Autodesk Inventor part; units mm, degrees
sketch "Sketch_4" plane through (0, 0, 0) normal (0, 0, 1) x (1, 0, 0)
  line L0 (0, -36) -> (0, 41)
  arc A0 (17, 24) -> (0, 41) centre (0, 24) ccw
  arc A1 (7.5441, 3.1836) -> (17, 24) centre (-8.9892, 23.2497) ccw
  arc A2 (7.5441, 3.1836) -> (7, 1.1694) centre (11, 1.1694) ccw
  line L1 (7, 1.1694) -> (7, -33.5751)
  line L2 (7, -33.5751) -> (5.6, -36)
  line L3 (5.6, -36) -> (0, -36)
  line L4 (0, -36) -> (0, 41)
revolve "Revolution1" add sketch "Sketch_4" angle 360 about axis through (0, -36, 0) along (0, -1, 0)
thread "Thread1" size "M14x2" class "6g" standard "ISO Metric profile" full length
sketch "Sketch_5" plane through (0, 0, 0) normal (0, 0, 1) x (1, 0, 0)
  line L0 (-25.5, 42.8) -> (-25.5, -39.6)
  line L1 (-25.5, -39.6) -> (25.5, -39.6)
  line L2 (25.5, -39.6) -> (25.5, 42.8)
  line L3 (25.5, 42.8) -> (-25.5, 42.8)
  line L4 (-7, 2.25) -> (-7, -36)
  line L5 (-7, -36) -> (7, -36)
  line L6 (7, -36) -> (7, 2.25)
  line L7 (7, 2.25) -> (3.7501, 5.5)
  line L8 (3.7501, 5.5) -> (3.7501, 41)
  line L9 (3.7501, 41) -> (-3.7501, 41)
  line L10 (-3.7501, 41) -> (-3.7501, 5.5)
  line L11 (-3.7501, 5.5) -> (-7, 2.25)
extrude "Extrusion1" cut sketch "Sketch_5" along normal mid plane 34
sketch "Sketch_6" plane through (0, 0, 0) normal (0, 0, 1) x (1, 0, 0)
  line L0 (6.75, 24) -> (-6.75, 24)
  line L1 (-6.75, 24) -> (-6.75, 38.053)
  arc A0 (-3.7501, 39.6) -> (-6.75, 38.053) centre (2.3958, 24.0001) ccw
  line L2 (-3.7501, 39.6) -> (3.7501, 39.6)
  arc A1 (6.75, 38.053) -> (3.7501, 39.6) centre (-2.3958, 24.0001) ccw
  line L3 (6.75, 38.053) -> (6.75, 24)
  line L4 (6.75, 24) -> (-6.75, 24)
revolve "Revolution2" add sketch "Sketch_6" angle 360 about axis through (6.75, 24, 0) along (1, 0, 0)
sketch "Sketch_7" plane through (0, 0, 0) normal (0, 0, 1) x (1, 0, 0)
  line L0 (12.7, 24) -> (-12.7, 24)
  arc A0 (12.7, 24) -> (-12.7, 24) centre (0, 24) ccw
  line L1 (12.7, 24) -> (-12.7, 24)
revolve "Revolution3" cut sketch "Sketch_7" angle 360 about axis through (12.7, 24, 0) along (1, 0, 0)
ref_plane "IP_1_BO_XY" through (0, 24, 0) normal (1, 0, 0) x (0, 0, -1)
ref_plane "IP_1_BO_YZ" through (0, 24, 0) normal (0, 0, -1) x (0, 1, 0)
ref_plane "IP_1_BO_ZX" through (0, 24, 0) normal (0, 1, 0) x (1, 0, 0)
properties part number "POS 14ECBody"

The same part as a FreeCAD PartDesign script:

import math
import FreeCAD as App
import Part
import Sketcher

V = App.Vector
Q = App.Units.Quantity

doc = App.newDocument("Part")
body = doc.addObject("PartDesign::Body", "Body")

sketch1 = body.newObject("Sketcher::SketchObject", "Sketch")
sketch1.AttachmentSupport = (doc.getObject("XY_Plane"), [""])
sketch1.MapMode = "FlatFace"
sketch1.addGeometry(Part.LineSegment(V(0, 41, 0), V(0, -36, 0)), False)
sketch1.addGeometry(Part.LineSegment(V(0, -36, 0), V(5.6, -36, 0)), False)
sketch1.addGeometry(Part.LineSegment(V(5.6, -36, 0), V(7, -33.6, 0)), False)
sketch1.addGeometry(Part.LineSegment(V(7, -33.6, 0), V(7, 1.2, 0)), False)
sketch1.addGeometry(Part.ArcOfCircle(Part.Circle(V(11, 1.2, 0), V(0, 0, 1), 4), math.radians(150), math.radians(180)), False)
sketch1.addGeometry(Part.ArcOfCircle(Part.Circle(V(-9, 23.2, 0), V(0, 0, 1), 26), math.radians(-51), math.radians(2)), False)
sketch1.addGeometry(Part.ArcOfCircle(Part.Circle(V(0, 24, 0), V(0, 0, 1), 17), math.radians(0), math.radians(90)), False)
sketch1.addConstraint(Sketcher.Constraint("Coincident", 0, 2, 1, 1))
sketch1.addConstraint(Sketcher.Constraint("Coincident", 1, 2, 2, 1))
sketch1.addConstraint(Sketcher.Constraint("Coincident", 2, 2, 3, 1))
sketch1.addConstraint(Sketcher.Constraint("Tangent", 3, 2, 4, 2))
sketch1.addConstraint(Sketcher.Constraint("Coincident", 4, 1, 5, 1))
sketch1.addConstraint(Sketcher.Constraint("Coincident", 5, 2, 6, 1))
sketch1.addConstraint(Sketcher.Constraint("Coincident", 6, 2, 0, 1))
sketch1.addConstraint(Sketcher.Constraint("Vertical", 0))
sketch1.addConstraint(Sketcher.Constraint("Horizontal", 1))
sketch1.addConstraint(Sketcher.Constraint("Vertical", 3))
sketch1.addConstraint(Sketcher.Constraint("PointOnObject", 6, 3, -2))
sketch1.addConstraint(Sketcher.Constraint("PointOnObject", 0, 2, -2))
sketch1.addConstraint(Sketcher.Constraint("Horizontal", 6, 3, 5, 2))
sketch1.addConstraint(Sketcher.Constraint("Radius", 4, Q("4 mm")))
sketch1.addConstraint(Sketcher.Constraint("Radius", 5, Q("26 mm")))
sketch1.addConstraint(Sketcher.Constraint("Radius", 6, Q("17 mm")))
sketch1.addConstraint(Sketcher.Constraint("DistanceY", 0, 2, 0, 1, Q("77 mm")))
sketch1.addConstraint(Sketcher.Constraint("Angle", 2, Q("60.0003 deg")))
sketch1.addConstraint(Sketcher.Constraint("DistanceX", 1, 1, 1, 2, Q("5.6 mm")))
sketch1.addConstraint(Sketcher.Constraint("DistanceX", -1, 1, 4, 3, Q("11 mm")))
sketch1.addConstraint(Sketcher.Constraint("DistanceY", -1, 1, 6, 3, Q("24 mm")))
sketch1.addConstraint(Sketcher.Constraint("DistanceY", 3, 1, 3, 2, Q("34.7445 mm")))
sketch1.addConstraint(Sketcher.Constraint("DistanceX", -1, 1, 4, 1, Q("7.544 mm")))
revolution = body.newObject("PartDesign::Revolution", "Revolution")
revolution.Profile = sketch1
revolution.ReferenceAxis = (sketch1, ["V_Axis"])
revolution.Angle = 360

sketch2 = body.newObject("Sketcher::SketchObject", "Sketch001")
sketch2.AttachmentSupport = (doc.getObject("XY_Plane"), [""])
sketch2.MapMode = "FlatFace"
sketch2.addGeometry(Part.LineSegment(V(25.5, 42.8, 0), V(-25.5, 42.8, 0)), False)
sketch2.addGeometry(Part.LineSegment(V(-25.5, 42.8, 0), V(-25.5, -39.6, 0)), False)
sketch2.addGeometry(Part.LineSegment(V(-25.5, -39.6, 0), V(25.5, -39.6, 0)), False)
sketch2.addGeometry(Part.LineSegment(V(25.5, -39.6, 0), V(25.5, 42.8, 0)), False)
sketch2.addGeometry(Part.LineSegment(V(-7, -36, 0), V(-7, 2.2, 0)), False)
sketch2.addGeometry(Part.LineSegment(V(-7, 2.2, 0), V(-3.8, 5.5, 0)), False)
sketch2.addGeometry(Part.LineSegment(V(-3.8, 5.5, 0), V(-3.8, 41, 0)), False)
sketch2.addGeometry(Part.LineSegment(V(-3.8, 41, 0), V(3.8, 41, 0)), False)
sketch2.addGeometry(Part.LineSegment(V(3.8, 41, 0), V(3.8, 5.5, 0)), False)
sketch2.addGeometry(Part.LineSegment(V(3.8, 5.5, 0), V(7, 2.2, 0)), False)
sketch2.addGeometry(Part.LineSegment(V(7, 2.2, 0), V(7, -36, 0)), False)
sketch2.addGeometry(Part.LineSegment(V(7, -36, 0), V(-7, -36, 0)), False)
sketch2.addConstraint(Sketcher.Constraint("Coincident", 0, 2, 1, 1))
sketch2.addConstraint(Sketcher.Constraint("Coincident", 1, 2, 2, 1))
sketch2.addConstraint(Sketcher.Constraint("Coincident", 2, 2, 3, 1))
sketch2.addConstraint(Sketcher.Constraint("Coincident", 3, 2, 0, 1))
sketch2.addConstraint(Sketcher.Constraint("Coincident", 4, 2, 5, 1))
sketch2.addConstraint(Sketcher.Constraint("Coincident", 5, 2, 6, 1))
sketch2.addConstraint(Sketcher.Constraint("Coincident", 6, 2, 7, 1))
sketch2.addConstraint(Sketcher.Constraint("Coincident", 7, 2, 8, 1))
sketch2.addConstraint(Sketcher.Constraint("Coincident", 8, 2, 9, 1))
sketch2.addConstraint(Sketcher.Constraint("Coincident", 9, 2, 10, 1))
sketch2.addConstraint(Sketcher.Constraint("Coincident", 10, 2, 11, 1))
sketch2.addConstraint(Sketcher.Constraint("Coincident", 11, 2, 4, 1))
sketch2.addConstraint(Sketcher.Constraint("Horizontal", 0))
sketch2.addConstraint(Sketcher.Constraint("Vertical", 1))
sketch2.addConstraint(Sketcher.Constraint("Horizontal", 2))
sketch2.addConstraint(Sketcher.Constraint("Vertical", 3))
sketch2.addConstraint(Sketcher.Constraint("Vertical", 4))
sketch2.addConstraint(Sketcher.Constraint("Vertical", 6))
sketch2.addConstraint(Sketcher.Constraint("Horizontal", 7))
sketch2.addConstraint(Sketcher.Constraint("Vertical", 8))
sketch2.addConstraint(Sketcher.Constraint("Vertical", 10))
sketch2.addConstraint(Sketcher.Constraint("Horizontal", 11))
sketch2.addConstraint(Sketcher.Constraint("Symmetric", 5, 2, 8, 2, -2))
sketch2.addConstraint(Sketcher.Constraint("Symmetric", 4, 2, 9, 2, -2))
sketch2.addConstraint(Sketcher.Constraint("Perpendicular", 5, 9))
sketch2.addConstraint(Sketcher.Constraint("DistanceX", 0, 2, 0, 1, Q("51 mm")))
sketch2.addConstraint(Sketcher.Constraint("DistanceX", 11, 2, 11, 1, Q("14 mm")))
sketch2.addConstraint(Sketcher.Constraint("DistanceY", 1, 2, 1, 1, Q("82.4 mm")))
sketch2.addConstraint(Sketcher.Constraint("DistanceY", 6, 1, 6, 2, Q("35.5 mm")))
sketch2.addConstraint(Sketcher.Constraint("DistanceY", -1, 1, 6, 2, Q("41 mm")))
sketch2.addConstraint(Sketcher.Constraint("DistanceY", 10, 2, -1, 1, Q("36 mm")))
sketch2.addConstraint(Sketcher.Constraint("DistanceY", 4, 1, 4, 2, Q("38.25 mm")))
sketch2.addConstraint(Sketcher.Constraint("DistanceX", 0, 2, -1, 1, Q("25.5 mm")))
sketch2.addConstraint(Sketcher.Constraint("DistanceY", -1, 1, 0, 2, Q("42.8 mm")))
pocket1 = body.newObject("PartDesign::Pocket", "Pocket")
pocket1.Profile = sketch2
pocket1.Length = 34
pocket1.Midplane = True

sketch3 = body.newObject("Sketcher::SketchObject", "Sketch002")
sketch3.AttachmentSupport = (doc.getObject("XY_Plane"), [""])
sketch3.MapMode = "FlatFace"
sketch3.addGeometry(Part.LineSegment(V(-6.8, 24, 0), V(6.8, 24, 0)), False)
sketch3.addGeometry(Part.LineSegment(V(6.8, 24, 0), V(6.8, 38.1, 0)), False)
sketch3.addGeometry(Part.ArcOfCircle(Part.Circle(V(-2.4, 24, 0), V(0, 0, 1), 16.8), math.radians(56.94), math.radians(68.5)), False)
sketch3.addGeometry(Part.LineSegment(V(3.8, 39.6, 0), V(-3.8, 39.6, 0)), False)
sketch3.addGeometry(Part.ArcOfCircle(Part.Circle(V(2.4, 24, 0), V(0, 0, 1), 16.8), math.radians(111.5), math.radians(123.06)), False)
sketch3.addGeometry(Part.LineSegment(V(-6.8, 38.1, 0), V(-6.8, 24, 0)), False)
sketch3.addGeometry(Part.LineSegment(V(-6.8, 24, 0), V(6.8, 24, 0)), True)
sketch3.addConstraint(Sketcher.Constraint("Coincident", 0, 2, 1, 1))
sketch3.addConstraint(Sketcher.Constraint("Coincident", 1, 2, 2, 1))
sketch3.addConstraint(Sketcher.Constraint("Coincident", 2, 2, 3, 1))
sketch3.addConstraint(Sketcher.Constraint("Coincident", 3, 2, 4, 1))
sketch3.addConstraint(Sketcher.Constraint("Coincident", 4, 2, 5, 1))
sketch3.addConstraint(Sketcher.Constraint("Coincident", 5, 2, 0, 1))
sketch3.addConstraint(Sketcher.Constraint("Horizontal", 0))
sketch3.addConstraint(Sketcher.Constraint("Vertical", 1))
sketch3.addConstraint(Sketcher.Constraint("Horizontal", 3))
sketch3.addConstraint(Sketcher.Constraint("Vertical", 5))
sketch3.addConstraint(Sketcher.Constraint("Horizontal", 6))
sketch3.addConstraint(Sketcher.Constraint("Coincident", 6, 1, 5, 2))
sketch3.addConstraint(Sketcher.Constraint("Symmetric", 1, 2, 4, 2, -2))
sketch3.addConstraint(Sketcher.Constraint("Vertical", 1, 2, 6, 2))
sketch3.addConstraint(Sketcher.Constraint("DistanceX", 0, 1, 0, 2, Q("13.5 mm")))
sketch3.addConstraint(Sketcher.Constraint("DistanceY", -1, 1, 0, 2, Q("24 mm")))
sketch3.addConstraint(Sketcher.Constraint("Radius", 2, Q("16.765 mm")))
sketch3.addConstraint(Sketcher.Constraint("Radius", 4, Q("16.769 mm")))
sketch3.addConstraint(Sketcher.Constraint("DistanceX", 2, 2, 1, 2, Q("3 mm")))
sketch3.addConstraint(Sketcher.Constraint("DistanceX", 4, 2, 3, 2, Q("3 mm")))
sketch3.addConstraint(Sketcher.Constraint("DistanceY", -1, 1, 2, 2, Q("39.6 mm")))
sketch3.addConstraint(Sketcher.Constraint("DistanceY", 1, 1, 1, 2, Q("14.053 mm")))
revolution2 = body.newObject("PartDesign::Revolution", "Revolution001")
revolution2.Profile = sketch3
revolution2.ReferenceAxis = (sketch3, ["Axis0"])
revolution2.Angle = 360

sketch4 = body.newObject("Sketcher::SketchObject", "Sketch003")
sketch4.AttachmentSupport = (doc.getObject("XY_Plane"), [""])
sketch4.MapMode = "FlatFace"
sketch4.addGeometry(Part.LineSegment(V(-13, 24, 0), V(13, 24, 0)), False)
sketch4.addGeometry(Part.ArcOfCircle(Part.Circle(V(0, 24, 0), V(0, 0, 1), 13), math.radians(0), math.radians(180)), False)
sketch4.addGeometry(Part.LineSegment(V(-13, 24, 0), V(13, 24, 0)), True)
sketch4.addConstraint(Sketcher.Constraint("Coincident", 0, 1, 1, 2))
sketch4.addConstraint(Sketcher.Constraint("Coincident", 1, 1, 0, 2))
sketch4.addConstraint(Sketcher.Constraint("Horizontal", 0))
sketch4.addConstraint(Sketcher.Constraint("Horizontal", 2))
sketch4.addConstraint(Sketcher.Constraint("Coincident", 2, 1, 0, 1))
sketch4.addConstraint(Sketcher.Constraint("PointOnObject", 1, 3, -2))
sketch4.addConstraint(Sketcher.Constraint("Horizontal", 1, 3, 0, 1))
sketch4.addConstraint(Sketcher.Constraint("Equal", 0, 2))
sketch4.addConstraint(Sketcher.Constraint("Radius", 1, Q("12.7 mm")))
sketch4.addConstraint(Sketcher.Constraint("DistanceY", -1, 1, 1, 3, Q("24 mm")))
groove = body.newObject("PartDesign::Groove", "Groove")
groove.Profile = sketch4
groove.ReferenceAxis = (sketch4, ["Axis0"])
groove.Angle = 360

doc.recompute()
